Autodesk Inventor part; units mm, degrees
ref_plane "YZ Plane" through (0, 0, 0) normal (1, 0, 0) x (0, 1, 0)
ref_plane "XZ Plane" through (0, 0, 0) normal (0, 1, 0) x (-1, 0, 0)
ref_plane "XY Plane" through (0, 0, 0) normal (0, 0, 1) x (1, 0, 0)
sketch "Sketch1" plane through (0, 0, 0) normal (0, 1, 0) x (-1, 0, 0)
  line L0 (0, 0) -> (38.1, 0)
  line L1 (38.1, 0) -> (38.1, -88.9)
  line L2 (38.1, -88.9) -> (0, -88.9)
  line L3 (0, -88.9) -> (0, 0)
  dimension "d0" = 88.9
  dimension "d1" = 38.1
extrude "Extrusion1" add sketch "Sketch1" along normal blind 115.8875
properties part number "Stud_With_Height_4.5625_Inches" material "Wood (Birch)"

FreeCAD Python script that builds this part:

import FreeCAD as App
import Part
import Sketcher

V = App.Vector
Q = App.Units.Quantity

doc = App.newDocument("Part")
body = doc.addObject("PartDesign::Body", "Body")

sketch1 = body.newObject("Sketcher::SketchObject", "Sketch")
sketch1.AttachmentSupport = (doc.getObject("XZ_Plane"), [""])
sketch1.MapMode = "FlatFace"
sketch1.addGeometry(Part.LineSegment(V(-38, 0, 0), V(0, 0, 0)), False)
sketch1.addGeometry(Part.LineSegment(V(0, 0, 0), V(0, -89, 0)), False)
sketch1.addGeometry(Part.LineSegment(V(0, -89, 0), V(-38, -89, 0)), False)
sketch1.addGeometry(Part.LineSegment(V(-38, -89, 0), V(-38, 0, 0)), False)
sketch1.addConstraint(Sketcher.Constraint("Coincident", 0, 2, 1, 1))
sketch1.addConstraint(Sketcher.Constraint("Coincident", 1, 2, 2, 1))
sketch1.addConstraint(Sketcher.Constraint("Coincident", 2, 2, 3, 1))
sketch1.addConstraint(Sketcher.Constraint("Coincident", 3, 2, 0, 1))
sketch1.addConstraint(Sketcher.Constraint("Horizontal", 0))
sketch1.addConstraint(Sketcher.Constraint("Vertical", 1))
sketch1.addConstraint(Sketcher.Constraint("Horizontal", 2))
sketch1.addConstraint(Sketcher.Constraint("Vertical", 3))
sketch1.addConstraint(Sketcher.Constraint("Coincident", 0, 2, -1, 1))
sketch1.addConstraint(Sketcher.Constraint("DistanceX", 0, 1, 0, 2, Q("1.5 in")))
sketch1.addConstraint(Sketcher.Constraint("DistanceY", 1, 2, 1, 1, Q("3.5 in")))
pad1 = body.newObject("PartDesign::Pad", "Pad")
pad1.Profile = sketch1
pad1.Length = Q("4.5625 in")
pad1.Reversed = True

doc.recompute()
